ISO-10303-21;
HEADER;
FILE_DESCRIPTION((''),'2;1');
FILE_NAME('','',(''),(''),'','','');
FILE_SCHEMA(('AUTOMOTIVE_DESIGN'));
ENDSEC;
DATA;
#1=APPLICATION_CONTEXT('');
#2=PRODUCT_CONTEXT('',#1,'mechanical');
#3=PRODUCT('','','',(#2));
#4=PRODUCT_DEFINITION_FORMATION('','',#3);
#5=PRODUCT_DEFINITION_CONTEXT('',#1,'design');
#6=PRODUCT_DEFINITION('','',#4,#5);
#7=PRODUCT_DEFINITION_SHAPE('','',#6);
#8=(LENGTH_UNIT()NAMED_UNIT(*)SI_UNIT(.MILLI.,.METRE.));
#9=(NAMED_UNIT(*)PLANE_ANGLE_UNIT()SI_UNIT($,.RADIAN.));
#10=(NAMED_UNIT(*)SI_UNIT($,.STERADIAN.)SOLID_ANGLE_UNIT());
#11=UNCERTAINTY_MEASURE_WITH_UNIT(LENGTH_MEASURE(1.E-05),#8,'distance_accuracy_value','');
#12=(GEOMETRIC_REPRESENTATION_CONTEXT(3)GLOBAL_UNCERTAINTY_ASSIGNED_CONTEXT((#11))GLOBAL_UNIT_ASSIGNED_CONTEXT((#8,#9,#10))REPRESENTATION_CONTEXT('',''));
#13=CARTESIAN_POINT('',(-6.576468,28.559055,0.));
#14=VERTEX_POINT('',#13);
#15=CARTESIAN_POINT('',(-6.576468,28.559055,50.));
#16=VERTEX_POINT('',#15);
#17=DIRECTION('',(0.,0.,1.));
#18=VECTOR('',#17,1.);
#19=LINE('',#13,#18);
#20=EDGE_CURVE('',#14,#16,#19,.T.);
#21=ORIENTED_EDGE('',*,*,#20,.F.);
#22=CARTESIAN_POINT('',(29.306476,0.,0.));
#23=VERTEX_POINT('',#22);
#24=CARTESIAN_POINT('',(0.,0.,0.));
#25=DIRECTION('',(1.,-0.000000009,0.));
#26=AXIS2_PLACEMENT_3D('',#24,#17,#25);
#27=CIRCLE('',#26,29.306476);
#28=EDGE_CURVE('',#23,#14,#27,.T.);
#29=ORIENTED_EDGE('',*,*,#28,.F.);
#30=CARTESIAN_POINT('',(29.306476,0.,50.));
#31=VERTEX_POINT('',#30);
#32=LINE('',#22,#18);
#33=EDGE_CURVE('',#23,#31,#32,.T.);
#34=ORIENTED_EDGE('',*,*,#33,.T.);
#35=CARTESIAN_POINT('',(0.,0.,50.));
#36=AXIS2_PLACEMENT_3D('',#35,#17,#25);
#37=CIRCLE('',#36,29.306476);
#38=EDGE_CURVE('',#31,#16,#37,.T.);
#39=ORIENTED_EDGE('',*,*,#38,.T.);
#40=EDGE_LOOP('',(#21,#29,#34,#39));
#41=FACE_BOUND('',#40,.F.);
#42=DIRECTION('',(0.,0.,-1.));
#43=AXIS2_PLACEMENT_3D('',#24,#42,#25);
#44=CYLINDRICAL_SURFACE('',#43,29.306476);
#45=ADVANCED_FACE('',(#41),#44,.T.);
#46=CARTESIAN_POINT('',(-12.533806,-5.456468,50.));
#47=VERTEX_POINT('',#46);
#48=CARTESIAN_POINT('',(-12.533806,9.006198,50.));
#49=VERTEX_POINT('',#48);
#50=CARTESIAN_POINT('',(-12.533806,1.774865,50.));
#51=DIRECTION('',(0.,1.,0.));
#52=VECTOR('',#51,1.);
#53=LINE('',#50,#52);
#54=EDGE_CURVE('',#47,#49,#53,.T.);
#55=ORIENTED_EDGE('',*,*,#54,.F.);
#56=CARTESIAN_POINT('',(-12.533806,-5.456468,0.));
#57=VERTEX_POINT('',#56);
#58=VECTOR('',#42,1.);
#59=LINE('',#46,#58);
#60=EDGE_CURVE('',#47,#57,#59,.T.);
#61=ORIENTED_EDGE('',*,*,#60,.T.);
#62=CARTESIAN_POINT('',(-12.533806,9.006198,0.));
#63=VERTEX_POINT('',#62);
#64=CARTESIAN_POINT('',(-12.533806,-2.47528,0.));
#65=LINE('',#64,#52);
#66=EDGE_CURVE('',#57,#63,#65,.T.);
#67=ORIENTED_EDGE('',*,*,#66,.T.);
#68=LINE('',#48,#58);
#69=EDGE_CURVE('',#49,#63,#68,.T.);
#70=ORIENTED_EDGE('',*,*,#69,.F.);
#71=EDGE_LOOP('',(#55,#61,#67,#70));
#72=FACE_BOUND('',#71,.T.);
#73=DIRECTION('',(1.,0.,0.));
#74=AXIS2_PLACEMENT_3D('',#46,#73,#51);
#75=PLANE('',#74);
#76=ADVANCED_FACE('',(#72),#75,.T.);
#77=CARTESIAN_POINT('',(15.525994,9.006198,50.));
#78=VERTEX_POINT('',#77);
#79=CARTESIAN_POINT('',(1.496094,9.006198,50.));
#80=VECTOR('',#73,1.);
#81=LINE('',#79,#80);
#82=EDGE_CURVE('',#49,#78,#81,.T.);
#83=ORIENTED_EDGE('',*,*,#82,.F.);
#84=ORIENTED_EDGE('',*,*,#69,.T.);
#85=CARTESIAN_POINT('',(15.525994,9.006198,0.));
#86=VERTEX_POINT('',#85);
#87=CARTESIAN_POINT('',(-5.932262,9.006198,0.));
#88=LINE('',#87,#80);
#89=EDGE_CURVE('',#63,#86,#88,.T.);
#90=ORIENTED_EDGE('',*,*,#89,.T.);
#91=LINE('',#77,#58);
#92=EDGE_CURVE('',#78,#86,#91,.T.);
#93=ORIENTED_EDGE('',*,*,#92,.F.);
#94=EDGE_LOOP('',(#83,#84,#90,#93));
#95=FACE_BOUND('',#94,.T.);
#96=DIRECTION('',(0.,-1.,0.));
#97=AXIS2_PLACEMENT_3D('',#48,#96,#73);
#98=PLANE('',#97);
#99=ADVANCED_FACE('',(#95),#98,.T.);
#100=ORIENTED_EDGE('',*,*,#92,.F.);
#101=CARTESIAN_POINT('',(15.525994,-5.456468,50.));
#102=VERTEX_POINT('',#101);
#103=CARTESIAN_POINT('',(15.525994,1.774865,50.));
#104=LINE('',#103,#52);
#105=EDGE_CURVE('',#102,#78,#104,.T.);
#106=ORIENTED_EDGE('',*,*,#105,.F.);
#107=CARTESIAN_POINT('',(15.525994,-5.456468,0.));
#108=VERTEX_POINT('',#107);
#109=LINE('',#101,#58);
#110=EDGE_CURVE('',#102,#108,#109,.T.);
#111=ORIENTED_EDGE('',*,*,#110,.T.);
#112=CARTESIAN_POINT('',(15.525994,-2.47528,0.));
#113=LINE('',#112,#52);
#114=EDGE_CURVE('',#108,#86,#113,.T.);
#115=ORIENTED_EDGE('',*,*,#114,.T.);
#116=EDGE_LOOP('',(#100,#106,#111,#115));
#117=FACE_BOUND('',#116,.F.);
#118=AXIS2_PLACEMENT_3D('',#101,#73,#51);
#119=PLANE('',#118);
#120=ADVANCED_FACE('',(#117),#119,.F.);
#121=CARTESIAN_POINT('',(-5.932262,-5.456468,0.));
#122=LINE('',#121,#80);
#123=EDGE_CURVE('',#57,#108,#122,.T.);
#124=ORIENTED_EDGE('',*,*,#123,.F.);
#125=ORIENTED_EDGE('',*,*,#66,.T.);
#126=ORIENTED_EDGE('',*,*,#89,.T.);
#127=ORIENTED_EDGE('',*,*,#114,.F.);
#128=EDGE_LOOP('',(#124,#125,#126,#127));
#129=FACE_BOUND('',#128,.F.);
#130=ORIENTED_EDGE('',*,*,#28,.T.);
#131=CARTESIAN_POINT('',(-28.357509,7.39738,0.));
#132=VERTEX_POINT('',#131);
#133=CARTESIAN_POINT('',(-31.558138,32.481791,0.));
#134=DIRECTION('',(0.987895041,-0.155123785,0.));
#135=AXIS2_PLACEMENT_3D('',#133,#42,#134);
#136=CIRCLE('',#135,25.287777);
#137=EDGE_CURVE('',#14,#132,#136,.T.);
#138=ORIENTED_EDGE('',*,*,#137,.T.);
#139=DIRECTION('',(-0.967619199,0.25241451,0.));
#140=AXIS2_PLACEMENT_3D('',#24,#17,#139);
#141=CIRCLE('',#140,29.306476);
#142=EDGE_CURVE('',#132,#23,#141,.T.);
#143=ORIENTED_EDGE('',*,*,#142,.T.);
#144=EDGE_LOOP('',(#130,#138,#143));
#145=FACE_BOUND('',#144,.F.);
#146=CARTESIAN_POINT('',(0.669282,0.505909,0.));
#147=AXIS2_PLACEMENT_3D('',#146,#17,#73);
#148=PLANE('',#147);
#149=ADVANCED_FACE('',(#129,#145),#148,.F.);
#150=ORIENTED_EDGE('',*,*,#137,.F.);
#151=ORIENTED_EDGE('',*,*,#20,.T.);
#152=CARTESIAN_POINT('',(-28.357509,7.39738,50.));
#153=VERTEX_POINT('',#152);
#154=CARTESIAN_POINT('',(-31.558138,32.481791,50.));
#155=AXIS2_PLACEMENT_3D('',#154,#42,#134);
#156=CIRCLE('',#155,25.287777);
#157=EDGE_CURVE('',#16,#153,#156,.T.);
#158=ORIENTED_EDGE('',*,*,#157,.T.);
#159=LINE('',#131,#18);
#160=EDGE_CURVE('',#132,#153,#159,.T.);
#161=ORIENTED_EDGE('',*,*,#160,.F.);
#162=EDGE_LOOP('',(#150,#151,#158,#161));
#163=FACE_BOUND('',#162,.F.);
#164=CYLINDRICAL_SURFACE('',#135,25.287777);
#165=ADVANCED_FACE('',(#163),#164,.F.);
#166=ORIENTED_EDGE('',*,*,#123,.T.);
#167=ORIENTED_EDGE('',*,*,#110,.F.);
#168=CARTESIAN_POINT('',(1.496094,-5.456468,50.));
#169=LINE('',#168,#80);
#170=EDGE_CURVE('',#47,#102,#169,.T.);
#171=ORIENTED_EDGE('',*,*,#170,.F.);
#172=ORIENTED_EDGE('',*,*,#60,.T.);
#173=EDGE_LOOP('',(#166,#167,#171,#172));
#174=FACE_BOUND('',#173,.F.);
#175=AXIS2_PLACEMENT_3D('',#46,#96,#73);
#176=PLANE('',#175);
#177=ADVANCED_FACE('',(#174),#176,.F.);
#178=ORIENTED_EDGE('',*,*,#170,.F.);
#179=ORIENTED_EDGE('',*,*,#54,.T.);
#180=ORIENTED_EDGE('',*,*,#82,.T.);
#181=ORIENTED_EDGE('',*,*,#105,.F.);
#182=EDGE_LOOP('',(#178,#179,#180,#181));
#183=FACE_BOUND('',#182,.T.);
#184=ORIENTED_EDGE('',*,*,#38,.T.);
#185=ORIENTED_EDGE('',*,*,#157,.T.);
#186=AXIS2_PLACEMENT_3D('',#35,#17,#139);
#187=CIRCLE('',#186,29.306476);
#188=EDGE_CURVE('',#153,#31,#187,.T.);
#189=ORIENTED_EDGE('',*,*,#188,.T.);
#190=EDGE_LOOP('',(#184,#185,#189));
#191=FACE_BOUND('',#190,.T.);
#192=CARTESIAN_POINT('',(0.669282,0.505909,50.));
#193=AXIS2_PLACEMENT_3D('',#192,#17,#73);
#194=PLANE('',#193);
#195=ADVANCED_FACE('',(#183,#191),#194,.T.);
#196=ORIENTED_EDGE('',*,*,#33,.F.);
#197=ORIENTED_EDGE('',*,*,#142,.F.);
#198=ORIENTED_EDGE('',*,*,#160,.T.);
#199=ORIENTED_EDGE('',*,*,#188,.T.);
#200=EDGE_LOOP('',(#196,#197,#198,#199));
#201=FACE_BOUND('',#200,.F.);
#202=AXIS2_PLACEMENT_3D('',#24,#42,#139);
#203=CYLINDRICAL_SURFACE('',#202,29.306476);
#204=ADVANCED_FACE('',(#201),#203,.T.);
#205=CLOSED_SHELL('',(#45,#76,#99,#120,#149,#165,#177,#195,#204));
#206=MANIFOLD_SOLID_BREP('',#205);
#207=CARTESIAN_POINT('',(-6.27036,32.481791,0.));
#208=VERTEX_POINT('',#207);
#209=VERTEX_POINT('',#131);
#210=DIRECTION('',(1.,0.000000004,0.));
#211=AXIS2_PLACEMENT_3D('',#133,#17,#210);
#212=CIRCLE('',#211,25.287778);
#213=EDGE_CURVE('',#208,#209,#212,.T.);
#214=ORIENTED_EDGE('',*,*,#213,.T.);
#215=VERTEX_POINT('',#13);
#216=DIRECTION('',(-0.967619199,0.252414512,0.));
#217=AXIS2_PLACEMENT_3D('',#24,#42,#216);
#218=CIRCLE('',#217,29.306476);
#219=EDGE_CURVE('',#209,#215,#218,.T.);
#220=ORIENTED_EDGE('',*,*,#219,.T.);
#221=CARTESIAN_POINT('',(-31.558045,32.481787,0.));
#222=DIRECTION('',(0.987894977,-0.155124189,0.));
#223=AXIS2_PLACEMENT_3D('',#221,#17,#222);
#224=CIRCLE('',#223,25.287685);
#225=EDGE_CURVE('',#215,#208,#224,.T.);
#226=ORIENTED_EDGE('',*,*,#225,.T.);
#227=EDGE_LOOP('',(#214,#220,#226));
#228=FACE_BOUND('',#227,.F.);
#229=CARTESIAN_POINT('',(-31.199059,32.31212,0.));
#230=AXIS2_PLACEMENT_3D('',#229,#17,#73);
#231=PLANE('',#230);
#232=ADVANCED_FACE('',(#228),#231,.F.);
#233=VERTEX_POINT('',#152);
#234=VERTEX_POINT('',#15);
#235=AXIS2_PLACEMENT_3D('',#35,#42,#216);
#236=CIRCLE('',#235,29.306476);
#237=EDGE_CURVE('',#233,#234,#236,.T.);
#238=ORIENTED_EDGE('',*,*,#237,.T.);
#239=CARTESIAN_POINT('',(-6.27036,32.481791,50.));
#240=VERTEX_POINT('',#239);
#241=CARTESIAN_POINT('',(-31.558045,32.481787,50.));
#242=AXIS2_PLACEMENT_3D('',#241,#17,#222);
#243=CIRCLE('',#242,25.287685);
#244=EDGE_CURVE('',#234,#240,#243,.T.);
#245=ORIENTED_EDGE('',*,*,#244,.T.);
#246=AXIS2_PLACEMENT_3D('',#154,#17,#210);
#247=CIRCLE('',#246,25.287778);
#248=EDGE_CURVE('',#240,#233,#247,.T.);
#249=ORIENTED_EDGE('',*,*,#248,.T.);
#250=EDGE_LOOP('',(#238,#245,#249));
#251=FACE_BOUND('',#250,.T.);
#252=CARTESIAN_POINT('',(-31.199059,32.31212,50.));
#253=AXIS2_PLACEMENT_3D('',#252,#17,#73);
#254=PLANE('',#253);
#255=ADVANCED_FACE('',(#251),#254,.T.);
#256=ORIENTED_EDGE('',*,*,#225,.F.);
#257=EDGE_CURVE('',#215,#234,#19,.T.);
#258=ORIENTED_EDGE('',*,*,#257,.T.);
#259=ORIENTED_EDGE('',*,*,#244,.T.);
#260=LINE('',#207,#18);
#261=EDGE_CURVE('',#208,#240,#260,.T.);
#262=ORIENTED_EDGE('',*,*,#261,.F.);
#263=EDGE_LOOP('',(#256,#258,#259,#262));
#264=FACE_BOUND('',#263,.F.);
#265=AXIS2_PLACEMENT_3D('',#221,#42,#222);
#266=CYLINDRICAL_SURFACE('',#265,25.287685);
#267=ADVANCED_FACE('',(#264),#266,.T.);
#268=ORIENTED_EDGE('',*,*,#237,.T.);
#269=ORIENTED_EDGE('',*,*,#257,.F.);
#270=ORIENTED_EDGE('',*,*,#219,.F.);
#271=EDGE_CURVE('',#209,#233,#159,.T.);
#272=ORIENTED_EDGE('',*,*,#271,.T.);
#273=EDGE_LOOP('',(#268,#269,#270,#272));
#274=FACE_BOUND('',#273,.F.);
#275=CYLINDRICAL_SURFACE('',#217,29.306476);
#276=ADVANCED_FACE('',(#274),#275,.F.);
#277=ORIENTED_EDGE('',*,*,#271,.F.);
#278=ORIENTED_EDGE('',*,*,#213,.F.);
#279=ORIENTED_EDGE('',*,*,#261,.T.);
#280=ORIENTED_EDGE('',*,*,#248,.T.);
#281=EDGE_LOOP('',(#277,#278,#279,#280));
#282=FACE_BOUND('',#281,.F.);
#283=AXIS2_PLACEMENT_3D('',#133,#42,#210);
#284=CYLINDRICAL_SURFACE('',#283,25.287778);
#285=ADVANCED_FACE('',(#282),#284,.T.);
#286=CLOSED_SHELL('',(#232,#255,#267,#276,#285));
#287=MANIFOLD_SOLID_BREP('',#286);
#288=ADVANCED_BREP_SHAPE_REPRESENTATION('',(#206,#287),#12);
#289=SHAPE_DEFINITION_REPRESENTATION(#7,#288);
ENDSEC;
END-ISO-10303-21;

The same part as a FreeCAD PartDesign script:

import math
import FreeCAD as App
import Part
import Sketcher

doc = App.newDocument("Part")
body = doc.addObject("PartDesign::Body", "Body")
body.AllowCompound = True

# Sketch on XY plane
sketch1 = body.newObject("Sketcher::SketchObject", "Sketch")
sketch1.AttachmentSupport = (doc.getObject("XY_Plane"), [""])
sketch1.MapMode = "FlatFace"
sketch1.addGeometry([
    Part.ArcOfCircle(Part.Circle(App.Vector(0, 0, 0), App.Vector(0, 0, 1), 29.306476), math.radians(102.967789), math.radians(165.379563)),  # 0
    Part.ArcOfCircle(Part.Circle(App.Vector(-31.558045, 32.481787, 0), App.Vector(0, 0, 1), 25.287685), math.radians(-8.923999), math.radians(0.00001)),  # 1
    Part.ArcOfCircle(Part.Circle(App.Vector(-31.558138, 32.481791, 0), App.Vector(0, 0, 1), 25.287778), math.radians(0), math.radians(277.271327)),  # 2
    Part.ArcOfCircle(Part.Circle(App.Vector(0, 0, 0), App.Vector(0, 0, 1), 29.306476), math.radians(165.379563), math.radians(360)),  # 3
    Part.ArcOfCircle(Part.Circle(App.Vector(0, 0, 0), App.Vector(0, 0, 1), 29.306476), math.radians(-0.000001), math.radians(102.967789)),  # 4
    Part.ArcOfCircle(Part.Circle(App.Vector(-31.558138, 32.481791, 0), App.Vector(0, 0, 1), 25.287777), math.radians(-82.728673), math.radians(-8.923975)),  # 5
], False)
sketch1.addConstraint([
    Sketcher.Constraint("Coincident", 0, 1, 1, 1),
    Sketcher.Constraint("Coincident", 1, 2, 2, 1),
    Sketcher.Constraint("Coincident", 2, 2, 0, 2),
    Sketcher.Constraint("Coincident", 3, 2, 4, 1),
    Sketcher.Constraint("Coincident", 4, 2, 5, 2),
    Sketcher.Constraint("Coincident", 5, 1, 3, 1),
    Sketcher.Constraint("Coincident", 0, 3, -1, 1),
    Sketcher.Constraint("Coincident", 3, 3, -1, 1),
    Sketcher.Constraint("Coincident", 4, 3, -1, 1),
    Sketcher.Constraint("Coincident", 5, 3, 2, 3),
    Sketcher.Constraint("Coincident", 4, 2, 0, 1),
    Sketcher.Constraint("PointOnObject", 3, 2, -1),
    Sketcher.Constraint("Radius", 0, 29.306476),
    Sketcher.Constraint("Radius", 1, 25.287685),
    Sketcher.Constraint("Radius", 2, 25.287778),
    Sketcher.Constraint("Radius", 5, 25.287777),
    Sketcher.Constraint("DistanceY", -1, 1, 2, 3, 32.481791),
    Sketcher.Constraint("DistanceX", 0, 1, -1, 1, 6.576468),
    Sketcher.Constraint("DistanceY", -1, 1, 1, 2, 32.481791),
])
pad1 = body.newObject("PartDesign::Pad", "Pad")
pad1.Profile = sketch1
pad1.Length = 50

# Sketch on XY plane
sketch2 = body.newObject("Sketcher::SketchObject", "Sketch001")
sketch2.AttachmentSupport = (doc.getObject("XY_Plane"), [""])
sketch2.MapMode = "FlatFace"
sketch2.AttachmentOffset = App.Placement(App.Vector(0, 0, 50), App.Rotation())
sketch2.addGeometry([
    Part.LineSegment(App.Vector(-13, 9, 0), App.Vector(-13, -5, 0)),
    Part.LineSegment(App.Vector(-13, -5, 0), App.Vector(16, -5, 0)),
    Part.LineSegment(App.Vector(16, -5, 0), App.Vector(16, 9, 0)),
    Part.LineSegment(App.Vector(16, 9, 0), App.Vector(-13, 9, 0)),
], False)
sketch2.addConstraint([
    Sketcher.Constraint("Coincident", 0, 2, 1, 1),
    Sketcher.Constraint("Coincident", 1, 2, 2, 1),
    Sketcher.Constraint("Coincident", 2, 2, 3, 1),
    Sketcher.Constraint("Coincident", 3, 2, 0, 1),
    Sketcher.Constraint("Vertical", 0),
    Sketcher.Constraint("Horizontal", 1),
    Sketcher.Constraint("Vertical", 2),
    Sketcher.Constraint("Horizontal", 3),
    Sketcher.Constraint("DistanceX", 1, 1, 1, 2, 28.0598),
    Sketcher.Constraint("DistanceY", -1, 1, 2, 2, 9.006198),
    Sketcher.Constraint("DistanceY", 0, 2, 0, 1, 14.462667),
    Sketcher.Constraint("DistanceX", 0, 2, -1, 1, 12.533806),
])
pocket1 = body.newObject("PartDesign::Pocket", "Pocket")
pocket1.Profile = sketch2
pocket1.Length = 77

doc.recompute()
